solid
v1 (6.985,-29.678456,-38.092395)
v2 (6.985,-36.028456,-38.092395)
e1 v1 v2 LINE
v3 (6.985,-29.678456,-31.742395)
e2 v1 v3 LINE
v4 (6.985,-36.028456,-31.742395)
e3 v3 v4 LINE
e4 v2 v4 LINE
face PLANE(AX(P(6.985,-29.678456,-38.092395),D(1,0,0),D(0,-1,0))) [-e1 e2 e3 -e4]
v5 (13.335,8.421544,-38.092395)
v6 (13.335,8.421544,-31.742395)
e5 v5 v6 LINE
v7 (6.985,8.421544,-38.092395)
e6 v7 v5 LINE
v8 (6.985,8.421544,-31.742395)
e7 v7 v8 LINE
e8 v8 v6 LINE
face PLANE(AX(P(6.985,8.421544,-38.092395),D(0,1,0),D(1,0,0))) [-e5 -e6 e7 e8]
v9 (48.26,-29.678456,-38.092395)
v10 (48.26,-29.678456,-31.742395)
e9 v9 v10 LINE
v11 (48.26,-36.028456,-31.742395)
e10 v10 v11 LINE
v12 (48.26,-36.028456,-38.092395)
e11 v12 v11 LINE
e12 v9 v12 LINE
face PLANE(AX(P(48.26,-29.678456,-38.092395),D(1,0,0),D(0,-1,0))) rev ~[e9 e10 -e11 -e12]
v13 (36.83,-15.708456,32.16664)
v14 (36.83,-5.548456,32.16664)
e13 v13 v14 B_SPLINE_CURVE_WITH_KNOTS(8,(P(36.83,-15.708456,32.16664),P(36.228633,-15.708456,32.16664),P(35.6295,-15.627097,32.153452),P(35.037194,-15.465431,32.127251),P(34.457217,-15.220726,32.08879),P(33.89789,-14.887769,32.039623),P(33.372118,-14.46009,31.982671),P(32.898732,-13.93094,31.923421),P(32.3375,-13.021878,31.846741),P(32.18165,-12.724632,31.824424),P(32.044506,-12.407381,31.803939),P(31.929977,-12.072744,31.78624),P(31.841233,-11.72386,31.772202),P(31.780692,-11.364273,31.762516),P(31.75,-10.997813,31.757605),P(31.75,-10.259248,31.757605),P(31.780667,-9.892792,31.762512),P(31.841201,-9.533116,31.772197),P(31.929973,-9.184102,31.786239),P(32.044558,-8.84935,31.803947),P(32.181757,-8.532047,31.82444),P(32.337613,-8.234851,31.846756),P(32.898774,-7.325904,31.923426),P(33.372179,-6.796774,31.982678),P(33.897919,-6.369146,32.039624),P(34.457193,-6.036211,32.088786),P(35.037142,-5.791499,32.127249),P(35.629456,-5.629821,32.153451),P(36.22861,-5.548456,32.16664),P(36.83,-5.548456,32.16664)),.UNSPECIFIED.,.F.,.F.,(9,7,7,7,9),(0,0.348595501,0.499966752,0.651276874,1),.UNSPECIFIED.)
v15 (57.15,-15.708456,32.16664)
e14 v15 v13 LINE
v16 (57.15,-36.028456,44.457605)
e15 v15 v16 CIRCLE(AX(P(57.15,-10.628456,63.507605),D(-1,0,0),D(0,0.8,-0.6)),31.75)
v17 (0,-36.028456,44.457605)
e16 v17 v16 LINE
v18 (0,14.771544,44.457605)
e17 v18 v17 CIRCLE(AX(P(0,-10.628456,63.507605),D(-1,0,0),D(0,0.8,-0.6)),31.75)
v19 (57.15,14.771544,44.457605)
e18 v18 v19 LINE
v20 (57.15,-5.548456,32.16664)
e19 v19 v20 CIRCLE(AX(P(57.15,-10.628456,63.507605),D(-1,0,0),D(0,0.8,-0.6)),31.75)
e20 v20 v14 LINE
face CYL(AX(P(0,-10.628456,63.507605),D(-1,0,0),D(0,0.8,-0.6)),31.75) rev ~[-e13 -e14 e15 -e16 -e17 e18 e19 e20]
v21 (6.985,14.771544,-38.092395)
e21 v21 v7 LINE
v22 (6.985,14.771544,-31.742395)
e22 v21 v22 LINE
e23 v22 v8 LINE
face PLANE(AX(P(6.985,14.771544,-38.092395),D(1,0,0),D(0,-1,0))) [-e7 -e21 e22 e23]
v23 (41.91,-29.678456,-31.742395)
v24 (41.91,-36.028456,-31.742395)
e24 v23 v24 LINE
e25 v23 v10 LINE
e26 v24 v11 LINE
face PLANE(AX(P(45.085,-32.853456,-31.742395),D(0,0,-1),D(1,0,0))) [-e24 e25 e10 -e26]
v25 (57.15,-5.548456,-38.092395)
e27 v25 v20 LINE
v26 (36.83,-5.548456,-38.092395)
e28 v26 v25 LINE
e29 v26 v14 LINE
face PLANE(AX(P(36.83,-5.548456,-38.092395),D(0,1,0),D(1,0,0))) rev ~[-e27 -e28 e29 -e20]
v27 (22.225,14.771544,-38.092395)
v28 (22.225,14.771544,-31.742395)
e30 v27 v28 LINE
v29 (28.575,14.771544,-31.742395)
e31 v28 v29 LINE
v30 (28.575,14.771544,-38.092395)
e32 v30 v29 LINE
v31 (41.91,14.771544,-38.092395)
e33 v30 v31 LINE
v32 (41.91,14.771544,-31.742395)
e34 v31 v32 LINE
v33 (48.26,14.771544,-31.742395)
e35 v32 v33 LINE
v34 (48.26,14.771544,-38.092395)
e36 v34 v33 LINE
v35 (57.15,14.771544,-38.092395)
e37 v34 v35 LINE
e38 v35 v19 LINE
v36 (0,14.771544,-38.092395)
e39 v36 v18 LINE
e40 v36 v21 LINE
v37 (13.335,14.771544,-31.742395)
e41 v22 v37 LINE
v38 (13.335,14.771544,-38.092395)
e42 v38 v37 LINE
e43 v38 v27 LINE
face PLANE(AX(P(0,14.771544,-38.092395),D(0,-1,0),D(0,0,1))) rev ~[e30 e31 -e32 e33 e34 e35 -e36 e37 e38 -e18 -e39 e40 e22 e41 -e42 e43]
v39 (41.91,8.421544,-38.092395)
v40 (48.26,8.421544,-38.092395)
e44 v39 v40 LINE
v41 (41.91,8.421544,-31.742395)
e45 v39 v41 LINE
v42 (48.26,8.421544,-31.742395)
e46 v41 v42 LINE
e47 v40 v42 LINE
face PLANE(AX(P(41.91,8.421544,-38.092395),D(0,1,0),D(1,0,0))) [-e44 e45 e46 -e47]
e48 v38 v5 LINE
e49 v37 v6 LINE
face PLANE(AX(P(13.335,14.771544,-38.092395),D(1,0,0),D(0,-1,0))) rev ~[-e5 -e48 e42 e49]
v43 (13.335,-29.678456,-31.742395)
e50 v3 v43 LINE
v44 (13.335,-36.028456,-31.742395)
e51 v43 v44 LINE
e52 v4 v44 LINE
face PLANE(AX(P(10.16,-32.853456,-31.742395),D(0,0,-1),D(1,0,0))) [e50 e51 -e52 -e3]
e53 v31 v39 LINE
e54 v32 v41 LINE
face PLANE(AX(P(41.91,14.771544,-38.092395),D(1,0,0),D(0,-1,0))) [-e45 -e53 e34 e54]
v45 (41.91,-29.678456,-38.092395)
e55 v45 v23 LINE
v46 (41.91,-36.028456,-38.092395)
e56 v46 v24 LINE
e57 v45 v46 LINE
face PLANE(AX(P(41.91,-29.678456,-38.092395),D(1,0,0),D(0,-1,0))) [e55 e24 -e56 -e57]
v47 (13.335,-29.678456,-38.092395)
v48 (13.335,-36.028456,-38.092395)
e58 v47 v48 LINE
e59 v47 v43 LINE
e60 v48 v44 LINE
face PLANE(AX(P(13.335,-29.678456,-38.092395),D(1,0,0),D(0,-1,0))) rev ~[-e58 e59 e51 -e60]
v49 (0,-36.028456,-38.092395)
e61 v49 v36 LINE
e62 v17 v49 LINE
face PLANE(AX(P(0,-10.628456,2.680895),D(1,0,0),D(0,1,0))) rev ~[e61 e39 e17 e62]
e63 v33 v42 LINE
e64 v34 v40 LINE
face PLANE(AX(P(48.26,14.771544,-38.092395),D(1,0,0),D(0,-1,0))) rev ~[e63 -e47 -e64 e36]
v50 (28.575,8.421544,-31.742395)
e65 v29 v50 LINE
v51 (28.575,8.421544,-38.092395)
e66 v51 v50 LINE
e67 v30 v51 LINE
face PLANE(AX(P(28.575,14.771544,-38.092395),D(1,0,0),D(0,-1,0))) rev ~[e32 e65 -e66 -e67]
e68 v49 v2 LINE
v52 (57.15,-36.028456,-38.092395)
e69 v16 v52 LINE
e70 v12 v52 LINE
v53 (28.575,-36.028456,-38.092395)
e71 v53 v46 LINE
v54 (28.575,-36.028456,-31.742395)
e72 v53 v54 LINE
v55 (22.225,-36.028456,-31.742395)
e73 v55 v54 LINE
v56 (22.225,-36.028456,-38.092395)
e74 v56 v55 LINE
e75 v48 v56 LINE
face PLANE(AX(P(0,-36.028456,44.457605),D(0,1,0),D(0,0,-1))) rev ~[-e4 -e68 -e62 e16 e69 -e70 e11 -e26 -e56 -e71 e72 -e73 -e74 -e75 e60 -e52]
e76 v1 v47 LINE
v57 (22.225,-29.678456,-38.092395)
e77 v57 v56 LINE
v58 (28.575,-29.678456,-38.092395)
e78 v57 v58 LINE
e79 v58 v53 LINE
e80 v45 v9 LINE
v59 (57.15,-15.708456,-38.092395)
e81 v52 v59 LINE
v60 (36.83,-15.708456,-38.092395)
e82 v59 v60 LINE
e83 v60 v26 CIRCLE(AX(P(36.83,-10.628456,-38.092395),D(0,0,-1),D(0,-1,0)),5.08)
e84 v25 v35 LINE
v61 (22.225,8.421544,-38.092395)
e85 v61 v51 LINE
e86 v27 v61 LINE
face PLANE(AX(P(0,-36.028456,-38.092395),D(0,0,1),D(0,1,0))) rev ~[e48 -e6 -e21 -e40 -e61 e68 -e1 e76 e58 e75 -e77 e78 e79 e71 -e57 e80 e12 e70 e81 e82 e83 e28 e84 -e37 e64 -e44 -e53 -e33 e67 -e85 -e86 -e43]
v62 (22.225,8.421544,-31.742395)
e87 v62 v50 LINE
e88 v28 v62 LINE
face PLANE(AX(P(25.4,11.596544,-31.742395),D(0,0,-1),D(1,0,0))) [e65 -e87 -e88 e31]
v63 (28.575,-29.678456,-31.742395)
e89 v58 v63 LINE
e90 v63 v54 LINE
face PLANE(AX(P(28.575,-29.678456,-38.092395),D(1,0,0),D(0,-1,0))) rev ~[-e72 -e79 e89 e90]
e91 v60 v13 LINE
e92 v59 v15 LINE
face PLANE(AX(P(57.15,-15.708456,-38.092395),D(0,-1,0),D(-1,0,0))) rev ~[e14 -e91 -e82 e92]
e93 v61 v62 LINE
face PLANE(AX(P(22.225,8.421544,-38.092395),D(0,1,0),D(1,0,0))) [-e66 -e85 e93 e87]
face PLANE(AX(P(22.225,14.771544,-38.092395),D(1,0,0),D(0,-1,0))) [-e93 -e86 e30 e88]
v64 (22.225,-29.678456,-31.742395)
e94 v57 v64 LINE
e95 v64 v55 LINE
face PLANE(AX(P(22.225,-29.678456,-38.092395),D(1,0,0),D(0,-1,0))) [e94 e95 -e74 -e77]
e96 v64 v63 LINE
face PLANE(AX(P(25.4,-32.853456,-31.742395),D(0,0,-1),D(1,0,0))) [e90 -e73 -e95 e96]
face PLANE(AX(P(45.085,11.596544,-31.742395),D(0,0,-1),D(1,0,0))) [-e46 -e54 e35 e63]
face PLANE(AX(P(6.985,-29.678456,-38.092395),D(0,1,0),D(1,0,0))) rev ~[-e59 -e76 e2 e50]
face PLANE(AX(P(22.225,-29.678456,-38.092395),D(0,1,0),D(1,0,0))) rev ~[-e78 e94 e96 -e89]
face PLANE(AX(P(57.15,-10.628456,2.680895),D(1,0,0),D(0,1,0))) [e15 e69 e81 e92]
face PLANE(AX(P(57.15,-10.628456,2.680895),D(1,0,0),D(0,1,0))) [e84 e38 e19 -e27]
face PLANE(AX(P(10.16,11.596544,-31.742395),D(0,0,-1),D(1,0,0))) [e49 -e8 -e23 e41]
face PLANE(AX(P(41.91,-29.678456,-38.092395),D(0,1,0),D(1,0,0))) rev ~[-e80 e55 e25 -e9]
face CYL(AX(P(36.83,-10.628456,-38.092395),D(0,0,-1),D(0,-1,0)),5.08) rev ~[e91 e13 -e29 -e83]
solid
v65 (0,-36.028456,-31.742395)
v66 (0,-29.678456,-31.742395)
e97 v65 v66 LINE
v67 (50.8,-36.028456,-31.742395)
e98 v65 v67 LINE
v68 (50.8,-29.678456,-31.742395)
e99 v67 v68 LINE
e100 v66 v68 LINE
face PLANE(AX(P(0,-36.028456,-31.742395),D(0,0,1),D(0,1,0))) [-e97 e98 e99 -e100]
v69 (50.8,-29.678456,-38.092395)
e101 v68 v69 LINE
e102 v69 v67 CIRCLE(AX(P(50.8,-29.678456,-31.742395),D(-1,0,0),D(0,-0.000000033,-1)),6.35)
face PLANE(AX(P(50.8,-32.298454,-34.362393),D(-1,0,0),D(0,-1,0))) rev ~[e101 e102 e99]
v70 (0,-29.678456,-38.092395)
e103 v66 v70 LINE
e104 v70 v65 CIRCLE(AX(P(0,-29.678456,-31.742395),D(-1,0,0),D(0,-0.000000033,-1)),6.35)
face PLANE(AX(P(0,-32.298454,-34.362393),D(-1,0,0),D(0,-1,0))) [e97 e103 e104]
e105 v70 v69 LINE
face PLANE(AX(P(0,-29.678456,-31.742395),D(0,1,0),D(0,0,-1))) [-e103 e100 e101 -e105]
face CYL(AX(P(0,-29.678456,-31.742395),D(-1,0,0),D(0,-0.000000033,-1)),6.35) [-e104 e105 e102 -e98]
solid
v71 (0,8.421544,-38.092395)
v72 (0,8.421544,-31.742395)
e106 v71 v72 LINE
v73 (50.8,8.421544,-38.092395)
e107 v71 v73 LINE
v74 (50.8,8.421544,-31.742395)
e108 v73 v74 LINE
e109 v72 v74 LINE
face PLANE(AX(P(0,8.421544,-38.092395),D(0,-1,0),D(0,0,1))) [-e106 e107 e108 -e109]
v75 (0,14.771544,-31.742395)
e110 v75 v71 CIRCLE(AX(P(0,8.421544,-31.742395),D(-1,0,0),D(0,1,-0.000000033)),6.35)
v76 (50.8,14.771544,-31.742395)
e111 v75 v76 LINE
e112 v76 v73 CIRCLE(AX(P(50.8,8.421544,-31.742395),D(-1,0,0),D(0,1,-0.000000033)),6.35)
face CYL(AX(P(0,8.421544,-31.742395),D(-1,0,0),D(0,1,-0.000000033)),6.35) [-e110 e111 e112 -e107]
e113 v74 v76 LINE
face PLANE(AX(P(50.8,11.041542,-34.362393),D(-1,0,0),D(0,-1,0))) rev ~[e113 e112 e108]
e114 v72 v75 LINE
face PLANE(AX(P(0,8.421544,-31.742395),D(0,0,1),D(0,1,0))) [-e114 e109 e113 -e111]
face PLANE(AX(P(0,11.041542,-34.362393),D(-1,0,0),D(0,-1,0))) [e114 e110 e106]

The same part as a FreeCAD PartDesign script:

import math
import FreeCAD as App
import Part
import Sketcher
from FreeCAD import Vector
Q = App.Units.Quantity

doc = App.newDocument("Part")
body = doc.addObject("PartDesign::Body", "Body")

sketch1 = doc.addObject("Sketcher::SketchObject", "Sketch")
body.addObject(sketch1)
sketch1.AttachmentSupport = (doc.YZ_Plane, [""])
sketch1.MapMode = "FlatFace"
sketch1.addGeometry([
    Part.LineSegment(Vector(-36, 44, 0), Vector(-36, -38, 0)),
    Part.LineSegment(Vector(-36, -38, 0), Vector(15, -38, 0)),
    Part.LineSegment(Vector(15, -38, 0), Vector(15, 44, 0)),
    Part.ArcOfCircle(Part.Circle(Vector(-11, 64, 0), Vector(0, 0, 1), 32), math.radians(-143), math.radians(-37)),
], False)
sketch1.addConstraint([
    Sketcher.Constraint("Coincident", 0, 2, 1, 1),
    Sketcher.Constraint("Coincident", 1, 2, 2, 1),
    Sketcher.Constraint("Coincident", 2, 2, 3, 2),
    Sketcher.Constraint("Coincident", 3, 1, 0, 1),
    Sketcher.Constraint("Vertical", 0),
    Sketcher.Constraint("Horizontal", 1),
    Sketcher.Constraint("Vertical", 2),
    Sketcher.Constraint("Horizontal", 2, 2, 3, 1),
    Sketcher.Constraint("DistanceX", 1, 1, 1, 2, Q("2 in")),
    Sketcher.Constraint("Radius", 3, Q("1.25 in")),
    Sketcher.Constraint("DistanceY", 0, 2, 3, 3, Q("4 in")),
    Sketcher.Constraint("DistanceX", 3, 3, -1, 1, Q("10.628456 mm")),
    Sketcher.Constraint("DistanceY", -1, 1, 3, 3, Q("63.507605 mm")),
])
pad1 = doc.addObject("PartDesign::Pad", "Pad")
body.addObject(pad1)
pad1.Profile = sketch1
pad1.Length = Q("2.25 in")

sketch2 = doc.addObject("Sketcher::SketchObject", "Sketch001")
body.addObject(sketch2)
sketch2.AttachmentSupport = (doc.XY_Plane, [""])
sketch2.MapMode = "FlatFace"
sketch2.AttachmentOffset = App.Placement(Vector(0, 0, -38.092395), App.Rotation())
sketch2.addGeometry([
    Part.LineSegment(Vector(57, -6, 0), Vector(57, -16, 0)),
    Part.LineSegment(Vector(57, -16, 0), Vector(37, -16, 0)),
    Part.ArcOfCircle(Part.Circle(Vector(37, -11, 0), Vector(0, 0, 1), 5), math.radians(90), math.radians(270)),
    Part.LineSegment(Vector(37, -6, 0), Vector(57, -6, 0)),
], False)
sketch2.addConstraint([
    Sketcher.Constraint("Coincident", 0, 2, 1, 1),
    Sketcher.Constraint("Tangent", 1, 2, 2, 2),
    Sketcher.Constraint("Tangent", 2, 1, 3, 1),
    Sketcher.Constraint("Coincident", 3, 2, 0, 1),
    Sketcher.Constraint("Vertical", 0),
    Sketcher.Constraint("Horizontal", 1),
    Sketcher.Constraint("Horizontal", 3),
    Sketcher.Constraint("Radius", 2, Q("0.2 in")),
    Sketcher.Constraint("DistanceX", 1, 2, 1, 1, Q("0.8 in")),
    Sketcher.Constraint("DistanceX", -1, 1, 2, 3, Q("1.45 in")),
    Sketcher.Constraint("DistanceY", 2, 3, -1, 1, Q("10.628456 mm")),
])
pocket1 = doc.addObject("PartDesign::Pocket", "Pocket")
body.addObject(pocket1)
pocket1.Profile = sketch2
pocket1.Length = Q("4 in")
pocket1.Reversed = True

sketch3 = doc.addObject("Sketcher::SketchObject", "Sketch002")
body.addObject(sketch3)
sketch3.AttachmentSupport = (doc.XY_Plane, [""])
sketch3.MapMode = "FlatFace"
sketch3.AttachmentOffset = App.Placement(Vector(0, 0, -38.092395), App.Rotation())
sketch3.addGeometry([
    Part.LineSegment(Vector(42, -36, 0), Vector(42, -30, 0)),
    Part.LineSegment(Vector(42, -30, 0), Vector(48, -30, 0)),
    Part.LineSegment(Vector(48, -30, 0), Vector(48, -36, 0)),
    Part.LineSegment(Vector(48, -36, 0), Vector(42, -36, 0)),
    Part.LineSegment(Vector(22, -36, 0), Vector(22, -30, 0)),
    Part.LineSegment(Vector(22, -30, 0), Vector(29, -30, 0)),
    Part.LineSegment(Vector(29, -30, 0), Vector(29, -36, 0)),
    Part.LineSegment(Vector(29, -36, 0), Vector(22, -36, 0)),
    Part.LineSegment(Vector(22, 8, 0), Vector(22, 15, 0)),
    Part.LineSegment(Vector(22, 15, 0), Vector(29, 15, 0)),
    Part.LineSegment(Vector(29, 15, 0), Vector(29, 8, 0)),
    Part.LineSegment(Vector(29, 8, 0), Vector(22, 8, 0)),
    Part.LineSegment(Vector(42, 8, 0), Vector(42, 15, 0)),
    Part.LineSegment(Vector(42, 15, 0), Vector(48, 15, 0)),
    Part.LineSegment(Vector(48, 15, 0), Vector(48, 8, 0)),
    Part.LineSegment(Vector(48, 8, 0), Vector(42, 8, 0)),
    Part.LineSegment(Vector(7, -36, 0), Vector(7, -30, 0)),
    Part.LineSegment(Vector(7, -30, 0), Vector(13, -30, 0)),
    Part.LineSegment(Vector(13, -30, 0), Vector(13, -36, 0)),
    Part.LineSegment(Vector(13, -36, 0), Vector(7, -36, 0)),
    Part.LineSegment(Vector(7, 8, 0), Vector(7, 15, 0)),
    Part.LineSegment(Vector(7, 15, 0), Vector(13, 15, 0)),
    Part.LineSegment(Vector(13, 15, 0), Vector(13, 8, 0)),
    Part.LineSegment(Vector(13, 8, 0), Vector(7, 8, 0)),
], False)
sketch3.addConstraint([
    Sketcher.Constraint("Coincident", 0, 2, 1, 1),
    Sketcher.Constraint("Coincident", 1, 2, 2, 1),
    Sketcher.Constraint("Coincident", 2, 2, 3, 1),
    Sketcher.Constraint("Coincident", 3, 2, 0, 1),
    Sketcher.Constraint("Coincident", 4, 2, 5, 1),
    Sketcher.Constraint("Coincident", 5, 2, 6, 1),
    Sketcher.Constraint("Coincident", 6, 2, 7, 1),
    Sketcher.Constraint("Coincident", 7, 2, 4, 1),
    Sketcher.Constraint("Coincident", 8, 2, 9, 1),
    Sketcher.Constraint("Coincident", 9, 2, 10, 1),
    Sketcher.Constraint("Coincident", 10, 2, 11, 1),
    Sketcher.Constraint("Coincident", 11, 2, 8, 1),
    Sketcher.Constraint("Coincident", 12, 2, 13, 1),
    Sketcher.Constraint("Coincident", 13, 2, 14, 1),
    Sketcher.Constraint("Coincident", 14, 2, 15, 1),
    Sketcher.Constraint("Coincident", 15, 2, 12, 1),
    Sketcher.Constraint("Coincident", 16, 2, 17, 1),
    Sketcher.Constraint("Coincident", 17, 2, 18, 1),
    Sketcher.Constraint("Coincident", 18, 2, 19, 1),
    Sketcher.Constraint("Coincident", 19, 2, 16, 1),
    Sketcher.Constraint("Coincident", 20, 2, 21, 1),
    Sketcher.Constraint("Coincident", 21, 2, 22, 1),
    Sketcher.Constraint("Coincident", 22, 2, 23, 1),
    Sketcher.Constraint("Coincident", 23, 2, 20, 1),
    Sketcher.Constraint("Vertical", 0),
    Sketcher.Constraint("Horizontal", 1),
    Sketcher.Constraint("Vertical", 2),
    Sketcher.Constraint("Horizontal", 3),
    Sketcher.Constraint("Vertical", 4),
    Sketcher.Constraint("Horizontal", 5),
    Sketcher.Constraint("Vertical", 6),
    Sketcher.Constraint("Horizontal", 7),
    Sketcher.Constraint("Vertical", 8),
    Sketcher.Constraint("Horizontal", 9),
    Sketcher.Constraint("Vertical", 10),
    Sketcher.Constraint("Horizontal", 11),
    Sketcher.Constraint("Vertical", 12),
    Sketcher.Constraint("Horizontal", 13),
    Sketcher.Constraint("Vertical", 14),
    Sketcher.Constraint("Horizontal", 15),
    Sketcher.Constraint("Vertical", 16),
    Sketcher.Constraint("Horizontal", 17),
    Sketcher.Constraint("Vertical", 18),
    Sketcher.Constraint("Horizontal", 19),
    Sketcher.Constraint("Vertical", 20),
    Sketcher.Constraint("Horizontal", 21),
    Sketcher.Constraint("Vertical", 22),
    Sketcher.Constraint("Horizontal", 23),
    Sketcher.Constraint("Horizontal", 1, 2, 4, 2),
    Sketcher.Constraint("Horizontal", 3, 2, 6, 2),
    Sketcher.Constraint("Horizontal", 9, 2, 12, 2),
    Sketcher.Constraint("Horizontal", 11, 2, 14, 2),
    Sketcher.Constraint("Horizontal", 5, 2, 16, 2),
    Sketcher.Constraint("Horizontal", 7, 2, 18, 2),
    Sketcher.Constraint("Horizontal", 13, 2, 20, 2),
    Sketcher.Constraint("Horizontal", 15, 2, 22, 2),
    Sketcher.Constraint("Vertical", 7, 2, 8, 2),
    Sketcher.Constraint("Vertical", 6, 2, 9, 2),
    Sketcher.Constraint("Vertical", 3, 2, 12, 2),
    Sketcher.Constraint("Vertical", 2, 2, 13, 2),
    Sketcher.Constraint("Vertical", 19, 2, 20, 2),
    Sketcher.Constraint("Vertical", 18, 2, 21, 2),
    Sketcher.Constraint("Equal", 3, 5),
    Sketcher.Constraint("Equal", 15, 17),
    Sketcher.Constraint("Equal", 23, 0),
    Sketcher.Constraint("Equal", 6, 8),
    Sketcher.Constraint("DistanceY", 7, 2, 8, 2, Q("2 in")),
    Sketcher.Constraint("DistanceX", 1, 1, 1, 2, Q("0.25 in")),
    Sketcher.Constraint("DistanceX", -1, 1, 1, 2, Q("1.9 in")),
    Sketcher.Constraint("DistanceX", 16, 2, 4, 2, Q("0.6 in")),
    Sketcher.Constraint("DistanceX", -1, 1, 4, 2, Q("0.875 in")),
    Sketcher.Constraint("DistanceY", 0, 2, -1, 1, Q("29.678456 mm")),
])
pocket2 = doc.addObject("PartDesign::Pocket", "Pocket001")
body.addObject(pocket2)
pocket2.Profile = sketch3
pocket2.Length = Q("0.25 in")
pocket2.Reversed = True
body2 = doc.addObject("PartDesign::Body", "Body001")
body2.AllowCompound = True

sketch4 = doc.addObject("Sketcher::SketchObject", "Sketch003")
body2.addObject(sketch4)
sketch4.AttachmentSupport = (doc.getObject("YZ_Plane001"), [""])
sketch4.MapMode = "FlatFace"
sketch4.addGeometry([
    Part.ArcOfCircle(Part.Circle(Vector(-30, -32, 0), Vector(0, 0, 1), 6), math.radians(-180), math.radians(-90)),
    Part.LineSegment(Vector(-36, -32, 0), Vector(-30, -32, 0)),
    Part.LineSegment(Vector(-30, -32, 0), Vector(-30, -38, 0)),
    Part.LineSegment(Vector(8, -32, 0), Vector(15, -32, 0)),
    Part.ArcOfCircle(Part.Circle(Vector(8, -32, 0), Vector(0, 0, 1), 6), math.radians(-90), math.radians(0)),
    Part.LineSegment(Vector(8, -38, 0), Vector(8, -32, 0)),
], False)
sketch4.addConstraint([
    Sketcher.Constraint("Coincident", 0, 1, 1, 1),
    Sketcher.Constraint("Coincident", 1, 2, 2, 1),
    Sketcher.Constraint("Coincident", 2, 2, 0, 2),
    Sketcher.Constraint("Coincident", 3, 2, 4, 2),
    Sketcher.Constraint("Coincident", 4, 1, 5, 1),
    Sketcher.Constraint("Coincident", 5, 2, 3, 1),
    Sketcher.Constraint("Horizontal", 1),
    Sketcher.Constraint("Vertical", 2),
    Sketcher.Constraint("Horizontal", 3),
    Sketcher.Constraint("Vertical", 5),
    Sketcher.Constraint("Coincident", 1, 2, 0, 3),
    Sketcher.Constraint("Coincident", 5, 2, 4, 3),
    Sketcher.Constraint("Equal", 0, 4),
    Sketcher.Constraint("Horizontal", 0, 3, 4, 3),
    Sketcher.Constraint("Radius", 0, Q("0.25 in")),
    Sketcher.Constraint("DistanceX", 0, 1, 3, 2, Q("2 in")),
    Sketcher.Constraint("DistanceX", 0, 3, -1, 1, Q("29.678456 mm")),
    Sketcher.Constraint("DistanceY", 0, 3, -1, 1, Q("31.742395 mm")),
])
pad2 = doc.addObject("PartDesign::Pad", "Pad001")
body2.addObject(pad2)
pad2.Profile = sketch4
pad2.Length = Q("2 in")

doc.recompute()
